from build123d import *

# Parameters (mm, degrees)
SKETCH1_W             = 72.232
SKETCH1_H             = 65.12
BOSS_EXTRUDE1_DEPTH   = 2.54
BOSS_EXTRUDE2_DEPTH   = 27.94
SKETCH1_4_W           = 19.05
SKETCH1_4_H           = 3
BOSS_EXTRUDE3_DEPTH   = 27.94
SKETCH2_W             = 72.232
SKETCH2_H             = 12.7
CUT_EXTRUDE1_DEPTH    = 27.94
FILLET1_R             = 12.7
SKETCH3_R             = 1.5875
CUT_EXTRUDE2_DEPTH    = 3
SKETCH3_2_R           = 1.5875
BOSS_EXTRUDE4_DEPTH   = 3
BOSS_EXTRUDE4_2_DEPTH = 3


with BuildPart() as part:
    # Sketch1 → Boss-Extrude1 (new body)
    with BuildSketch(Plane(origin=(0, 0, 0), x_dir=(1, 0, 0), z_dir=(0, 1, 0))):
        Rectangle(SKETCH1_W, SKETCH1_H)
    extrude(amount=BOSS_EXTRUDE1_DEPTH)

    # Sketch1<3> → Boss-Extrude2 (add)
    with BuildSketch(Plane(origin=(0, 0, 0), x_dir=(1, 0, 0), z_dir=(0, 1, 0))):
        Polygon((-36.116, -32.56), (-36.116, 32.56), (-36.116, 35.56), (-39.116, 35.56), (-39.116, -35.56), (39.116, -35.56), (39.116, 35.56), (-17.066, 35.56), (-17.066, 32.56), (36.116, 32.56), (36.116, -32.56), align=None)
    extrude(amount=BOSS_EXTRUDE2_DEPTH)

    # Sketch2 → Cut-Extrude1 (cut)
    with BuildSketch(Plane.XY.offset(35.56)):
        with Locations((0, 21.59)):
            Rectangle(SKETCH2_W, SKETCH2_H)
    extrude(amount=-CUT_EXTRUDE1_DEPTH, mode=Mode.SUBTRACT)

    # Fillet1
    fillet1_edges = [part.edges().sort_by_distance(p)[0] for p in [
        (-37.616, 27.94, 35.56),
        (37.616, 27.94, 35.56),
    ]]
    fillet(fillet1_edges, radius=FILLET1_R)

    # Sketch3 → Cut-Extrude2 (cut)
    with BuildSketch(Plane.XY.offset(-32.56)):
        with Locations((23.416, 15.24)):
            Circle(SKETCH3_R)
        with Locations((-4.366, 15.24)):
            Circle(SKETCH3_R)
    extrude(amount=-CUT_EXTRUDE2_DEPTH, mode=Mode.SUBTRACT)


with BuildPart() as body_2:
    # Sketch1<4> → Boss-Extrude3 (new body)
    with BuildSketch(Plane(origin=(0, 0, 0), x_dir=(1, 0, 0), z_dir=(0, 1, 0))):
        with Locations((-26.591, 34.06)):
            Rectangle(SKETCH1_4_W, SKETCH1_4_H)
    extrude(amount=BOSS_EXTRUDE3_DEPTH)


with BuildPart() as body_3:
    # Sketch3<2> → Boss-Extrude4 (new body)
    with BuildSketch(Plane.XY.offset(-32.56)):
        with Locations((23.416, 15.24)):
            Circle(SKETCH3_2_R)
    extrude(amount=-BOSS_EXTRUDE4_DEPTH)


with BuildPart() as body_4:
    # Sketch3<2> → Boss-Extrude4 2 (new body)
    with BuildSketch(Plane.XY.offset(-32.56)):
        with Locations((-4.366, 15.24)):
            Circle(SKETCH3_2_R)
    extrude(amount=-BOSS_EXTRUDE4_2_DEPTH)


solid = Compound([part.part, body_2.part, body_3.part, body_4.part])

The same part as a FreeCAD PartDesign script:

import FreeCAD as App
import Part
import Sketcher

V = App.Vector
Q = App.Units.Quantity


def edges_at(feature, points):
    """Names of the edges that pass closest to the given points."""
    edges = feature.Shape.Edges
    near = lambda p: min(range(len(edges)), key=lambda i: edges[i].distToShape(Part.Vertex(*p))[0])
    return sorted({f"Edge{near(p) + 1}" for p in points})

doc = App.newDocument("Part")
body = doc.addObject("PartDesign::Body", "Body")

# Sketch on XZ plane
sketch1 = body.newObject("Sketcher::SketchObject", "Sketch")
sketch1.AttachmentSupport = (doc.getObject("XZ_Plane"), [""])
sketch1.MapMode = "FlatFace"
sketch1.addGeometry(Part.LineSegment(V(-36, -33, 0), V(-36, 33, 0)), False)
sketch1.addGeometry(Part.LineSegment(V(-36, 33, 0), V(36, 33, 0)), False)
sketch1.addGeometry(Part.LineSegment(V(36, 33, 0), V(36, -33, 0)), False)
sketch1.addGeometry(Part.LineSegment(V(36, -33, 0), V(-36, -33, 0)), False)
sketch1.addConstraint(Sketcher.Constraint("Coincident", 0, 2, 1, 1))
sketch1.addConstraint(Sketcher.Constraint("Coincident", 1, 2, 2, 1))
sketch1.addConstraint(Sketcher.Constraint("Coincident", 2, 2, 3, 1))
sketch1.addConstraint(Sketcher.Constraint("Coincident", 3, 2, 0, 1))
sketch1.addConstraint(Sketcher.Constraint("Vertical", 0))
sketch1.addConstraint(Sketcher.Constraint("Horizontal", 1))
sketch1.addConstraint(Sketcher.Constraint("Vertical", 2))
sketch1.addConstraint(Sketcher.Constraint("Horizontal", 3))
sketch1.addConstraint(Sketcher.Constraint("Symmetric", 0, 2, 2, 2, -1, 1))
sketch1.addConstraint(Sketcher.Constraint("DistanceX", 1, 1, 1, 2, 72.232))
sketch1.addConstraint(Sketcher.Constraint("DistanceY", 0, 1, 0, 2, 65.12))
pad1 = body.newObject("PartDesign::Pad", "Pad")
pad1.Profile = sketch1
pad1.Length = Q("0.1 in")
pad1.Reversed = True

# Sketch on XZ plane
sketch2 = body.newObject("Sketcher::SketchObject", "Sketch001")
sketch2.AttachmentSupport = (doc.getObject("XZ_Plane"), [""])
sketch2.MapMode = "FlatFace"
sketch2.addGeometry(Part.LineSegment(V(-36.1, 32.6, 0), V(-36.1, -35.6, 0)), False)
sketch2.addGeometry(Part.LineSegment(V(-36.1, -35.6, 0), V(-39.1, -35.6, 0)), False)
sketch2.addGeometry(Part.LineSegment(V(-39.1, -35.6, 0), V(-39.1, 35.6, 0)), False)
sketch2.addGeometry(Part.LineSegment(V(-39.1, 35.6, 0), V(39.1, 35.6, 0)), False)
sketch2.addGeometry(Part.LineSegment(V(39.1, 35.6, 0), V(39.1, -35.6, 0)), False)
sketch2.addGeometry(Part.LineSegment(V(39.1, -35.6, 0), V(-17.1, -35.6, 0)), False)
sketch2.addGeometry(Part.LineSegment(V(-17.1, -35.6, 0), V(-17.1, -32.6, 0)), False)
sketch2.addGeometry(Part.LineSegment(V(-17.1, -32.6, 0), V(36.1, -32.6, 0)), False)
sketch2.addGeometry(Part.LineSegment(V(36.1, -32.6, 0), V(36.1, 32.6, 0)), False)
sketch2.addGeometry(Part.LineSegment(V(36.1, 32.6, 0), V(-36.1, 32.6, 0)), False)
sketch2.addConstraint(Sketcher.Constraint("Coincident", 0, 2, 1, 1))
sketch2.addConstraint(Sketcher.Constraint("Coincident", 1, 2, 2, 1))
sketch2.addConstraint(Sketcher.Constraint("Coincident", 2, 2, 3, 1))
sketch2.addConstraint(Sketcher.Constraint("Coincident", 3, 2, 4, 1))
sketch2.addConstraint(Sketcher.Constraint("Coincident", 4, 2, 5, 1))
sketch2.addConstraint(Sketcher.Constraint("Coincident", 5, 2, 6, 1))
sketch2.addConstraint(Sketcher.Constraint("Coincident", 6, 2, 7, 1))
sketch2.addConstraint(Sketcher.Constraint("Coincident", 7, 2, 8, 1))
sketch2.addConstraint(Sketcher.Constraint("Coincident", 8, 2, 9, 1))
sketch2.addConstraint(Sketcher.Constraint("Coincident", 9, 2, 0, 1))
sketch2.addConstraint(Sketcher.Constraint("Vertical", 0))
sketch2.addConstraint(Sketcher.Constraint("Horizontal", 1))
sketch2.addConstraint(Sketcher.Constraint("Vertical", 2))
sketch2.addConstraint(Sketcher.Constraint("Horizontal", 3))
sketch2.addConstraint(Sketcher.Constraint("Vertical", 4))
sketch2.addConstraint(Sketcher.Constraint("Horizontal", 5))
sketch2.addConstraint(Sketcher.Constraint("Vertical", 6))
sketch2.addConstraint(Sketcher.Constraint("Horizontal", 7))
sketch2.addConstraint(Sketcher.Constraint("Vertical", 8))
sketch2.addConstraint(Sketcher.Constraint("Horizontal", 9))
sketch2.addConstraint(Sketcher.Constraint("Symmetric", 1, 2, 3, 2, -1, 1))
sketch2.addConstraint(Sketcher.Constraint("Symmetric", 7, 2, 9, 2, -1, 1))
sketch2.addConstraint(Sketcher.Constraint("Horizontal", 1, 2, 4, 2))
sketch2.addConstraint(Sketcher.Constraint("Equal", 1, 6))
sketch2.addConstraint(Sketcher.Constraint("DistanceY", 2, 1, 2, 2, Q("2.8 in")))
sketch2.addConstraint(Sketcher.Constraint("DistanceX", 3, 1, 3, 2, Q("3.08 in")))
sketch2.addConstraint(Sketcher.Constraint("DistanceX", 0, 2, 5, 2, Q("0.75 in")))
sketch2.addConstraint(Sketcher.Constraint("DistanceX", 1, 2, 1, 1, 3.0))
pad2 = body.newObject("PartDesign::Pad", "Pad001")
pad2.Profile = sketch2
pad2.Length = Q("1.1 in")
pad2.Reversed = True

# Sketch on XY plane
sketch3 = body.newObject("Sketcher::SketchObject", "Sketch002")
sketch3.AttachmentSupport = (doc.getObject("XY_Plane"), [""])
sketch3.MapMode = "FlatFace"
sketch3.AttachmentOffset = App.Placement(V(0, 0, 1.4 * 25.4), App.Rotation())
sketch3.addGeometry(Part.LineSegment(V(-36, 28, 0), V(-36, 15, 0)), False)
sketch3.addGeometry(Part.LineSegment(V(-36, 15, 0), V(36, 15, 0)), False)
sketch3.addGeometry(Part.LineSegment(V(36, 15, 0), V(36, 28, 0)), False)
sketch3.addGeometry(Part.LineSegment(V(36, 28, 0), V(-36, 28, 0)), False)
sketch3.addConstraint(Sketcher.Constraint("Coincident", 0, 2, 1, 1))
sketch3.addConstraint(Sketcher.Constraint("Coincident", 1, 2, 2, 1))
sketch3.addConstraint(Sketcher.Constraint("Coincident", 2, 2, 3, 1))
sketch3.addConstraint(Sketcher.Constraint("Coincident", 3, 2, 0, 1))
sketch3.addConstraint(Sketcher.Constraint("Vertical", 0))
sketch3.addConstraint(Sketcher.Constraint("Horizontal", 1))
sketch3.addConstraint(Sketcher.Constraint("Vertical", 2))
sketch3.addConstraint(Sketcher.Constraint("Horizontal", 3))
sketch3.addConstraint(Sketcher.Constraint("DistanceY", 0, 2, 0, 1, Q("0.5 in")))
sketch3.addConstraint(Sketcher.Constraint("DistanceY", -1, 1, 0, 2, Q("0.6 in")))
sketch3.addConstraint(Sketcher.Constraint("DistanceX", 1, 1, 1, 2, 72.232))
sketch3.addConstraint(Sketcher.Constraint("DistanceX", 0, 2, -1, 1, 36.116))
pocket1 = body.newObject("PartDesign::Pocket", "Pocket")
pocket1.Profile = sketch3
pocket1.Length = Q("1.1 in")
doc.recompute()

fillet = body.newObject("PartDesign::Fillet", "Fillet")
fillet.Base = (pocket1, edges_at(pocket1, [(-37.616, 27.94, 35.56), (37.616, 27.94, 35.56)]))
fillet.Radius = Q("0.5 in")

# Sketch on XY plane
sketch4 = body.newObject("Sketcher::SketchObject", "Sketch003")
sketch4.AttachmentSupport = (doc.getObject("XY_Plane"), [""])
sketch4.MapMode = "FlatFace"
sketch4.AttachmentOffset = App.Placement(V(0, 0, -32.56), App.Rotation())
sketch4.addGeometry(Part.Circle(V(23.4, 15.2, 0), V(0, 0, 1), 1.6), False)
sketch4.addGeometry(Part.Circle(V(-4.4, 15.2, 0), V(0, 0, 1), 1.6), False)
sketch4.addConstraint(Sketcher.Constraint("Equal", 0, 1))
sketch4.addConstraint(Sketcher.Constraint("Horizontal", 0, 3, 1, 3))
sketch4.addConstraint(Sketcher.Constraint("Diameter", 0, Q("0.125 in")))
sketch4.addConstraint(Sketcher.Constraint("DistanceY", -1, 1, 0, 3, Q("0.6 in")))
sketch4.addConstraint(Sketcher.Constraint("DistanceX", -1, 1, 0, 3, 23.416))
sketch4.addConstraint(Sketcher.Constraint("DistanceX", 1, 3, -1, 1, 4.366))
pocket2 = body.newObject("PartDesign::Pocket", "Pocket001")
pocket2.Profile = sketch4
pocket2.Length = 3
body2 = doc.addObject("PartDesign::Body", "Body001")

# Sketch on XZ plane
sketch5 = body2.newObject("Sketcher::SketchObject", "Sketch004")
sketch5.AttachmentSupport = (doc.getObject("XZ_Plane001"), [""])
sketch5.MapMode = "FlatFace"
sketch5.addGeometry(Part.LineSegment(V(-36.1, -35.6, 0), V(-36.1, -32.6, 0)), False)
sketch5.addGeometry(Part.LineSegment(V(-36.1, -32.6, 0), V(-17.1, -32.6, 0)), False)
sketch5.addGeometry(Part.LineSegment(V(-17.1, -32.6, 0), V(-17.1, -35.6, 0)), False)
sketch5.addGeometry(Part.LineSegment(V(-17.1, -35.6, 0), V(-36.1, -35.6, 0)), False)
sketch5.addConstraint(Sketcher.Constraint("Coincident", 0, 2, 1, 1))
sketch5.addConstraint(Sketcher.Constraint("Coincident", 1, 2, 2, 1))
sketch5.addConstraint(Sketcher.Constraint("Coincident", 2, 2, 3, 1))
sketch5.addConstraint(Sketcher.Constraint("Coincident", 3, 2, 0, 1))
sketch5.addConstraint(Sketcher.Constraint("Vertical", 0))
sketch5.addConstraint(Sketcher.Constraint("Horizontal", 1))
sketch5.addConstraint(Sketcher.Constraint("Vertical", 2))
sketch5.addConstraint(Sketcher.Constraint("Horizontal", 3))
sketch5.addConstraint(Sketcher.Constraint("DistanceX", 1, 1, 1, 2, Q("0.75 in")))
sketch5.addConstraint(Sketcher.Constraint("DistanceY", 2, 2, -1, 1, Q("1.4 in")))
sketch5.addConstraint(Sketcher.Constraint("DistanceY", 0, 1, 0, 2, 3.0))
sketch5.addConstraint(Sketcher.Constraint("DistanceX", 0, 2, -1, 1, 36.116))
pad3 = body2.newObject("PartDesign::Pad", "Pad002")
pad3.Profile = sketch5
pad3.Length = Q("1.1 in")
pad3.Reversed = True
body3 = doc.addObject("PartDesign::Body", "Body002")

# Sketch on XY plane
sketch6 = body3.newObject("Sketcher::SketchObject", "Sketch005")
sketch6.AttachmentSupport = (doc.getObject("XY_Plane002"), [""])
sketch6.MapMode = "FlatFace"
sketch6.AttachmentOffset = App.Placement(V(0, 0, -32.56), App.Rotation())
sketch6.addGeometry(Part.Circle(V(23.4, 15.2, 0), V(0, 0, 1), 1.6), False)
sketch6.addConstraint(Sketcher.Constraint("Diameter", 0, Q("0.125 in")))
sketch6.addConstraint(Sketcher.Constraint("DistanceY", -1, 1, 0, 3, Q("0.6 in")))
sketch6.addConstraint(Sketcher.Constraint("DistanceX", -1, 1, 0, 3, 23.416))
pad4 = body3.newObject("PartDesign::Pad", "Pad003")
pad4.Profile = sketch6
pad4.Length = 3
pad4.Reversed = True
body4 = doc.addObject("PartDesign::Body", "Body003")

# Sketch on XY plane
sketch7 = body4.newObject("Sketcher::SketchObject", "Sketch006")
sketch7.AttachmentSupport = (doc.getObject("XY_Plane003"), [""])
sketch7.MapMode = "FlatFace"
sketch7.AttachmentOffset = App.Placement(V(0, 0, -32.56), App.Rotation())
sketch7.addGeometry(Part.Circle(V(-4.4, 15.2, 0), V(0, 0, 1), 1.6), False)
sketch7.addConstraint(Sketcher.Constraint("Diameter", 0, Q("0.125 in")))
sketch7.addConstraint(Sketcher.Constraint("DistanceY", -1, 1, 0, 3, Q("0.6 in")))
sketch7.addConstraint(Sketcher.Constraint("DistanceX", 0, 3, -1, 1, 4.366))
pad5 = body4.newObject("PartDesign::Pad", "Pad004")
pad5.Profile = sketch7
pad5.Length = 3
pad5.Reversed = True

doc.recompute()
